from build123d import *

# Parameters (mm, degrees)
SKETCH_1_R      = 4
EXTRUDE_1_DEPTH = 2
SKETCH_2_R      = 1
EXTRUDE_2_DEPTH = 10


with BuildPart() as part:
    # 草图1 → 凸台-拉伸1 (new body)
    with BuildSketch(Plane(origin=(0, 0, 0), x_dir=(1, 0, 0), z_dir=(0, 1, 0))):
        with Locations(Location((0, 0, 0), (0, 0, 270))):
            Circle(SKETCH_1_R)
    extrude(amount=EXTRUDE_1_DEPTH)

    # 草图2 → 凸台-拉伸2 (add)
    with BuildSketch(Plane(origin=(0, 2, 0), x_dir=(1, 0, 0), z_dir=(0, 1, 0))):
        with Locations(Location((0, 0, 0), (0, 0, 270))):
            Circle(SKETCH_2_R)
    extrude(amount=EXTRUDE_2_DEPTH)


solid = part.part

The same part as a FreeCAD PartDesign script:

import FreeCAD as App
import Part
import Sketcher
from FreeCAD import Vector

doc = App.newDocument("Part")
body = doc.addObject("PartDesign::Body", "Body")

sketch1 = body.newObject("Sketcher::SketchObject", "Sketch")
sketch1.AttachmentSupport = (doc.getObject("XZ_Plane"), [""])
sketch1.MapMode = "FlatFace"
sketch1.addGeometry(Part.Circle(Vector(0, 0, 0), Vector(0, 0, 1), 4), False)
sketch1.addConstraint(Sketcher.Constraint("Coincident", 0, 3, -1, 1))
sketch1.addConstraint(Sketcher.Constraint("Diameter", 0, 8.0))
pad1 = body.newObject("PartDesign::Pad", "Pad")
pad1.Profile = sketch1
pad1.Length = 2
pad1.Reversed = True

sketch2 = body.newObject("Sketcher::SketchObject", "Sketch001")
sketch2.AttachmentSupport = (doc.getObject("XZ_Plane"), [""])
sketch2.MapMode = "FlatFace"
sketch2.AttachmentOffset = App.Placement(Vector(0, 0, -2), App.Rotation())
sketch2.addGeometry(Part.Circle(Vector(0, 0, 0), Vector(0, 0, 1), 1), False)
sketch2.addConstraint(Sketcher.Constraint("Coincident", 0, 3, -1, 1))
sketch2.addConstraint(Sketcher.Constraint("Diameter", 0, 2.0))
pad2 = body.newObject("PartDesign::Pad", "Pad001")
pad2.Profile = sketch2
pad2.Length = 10
pad2.Reversed = True

doc.recompute()
